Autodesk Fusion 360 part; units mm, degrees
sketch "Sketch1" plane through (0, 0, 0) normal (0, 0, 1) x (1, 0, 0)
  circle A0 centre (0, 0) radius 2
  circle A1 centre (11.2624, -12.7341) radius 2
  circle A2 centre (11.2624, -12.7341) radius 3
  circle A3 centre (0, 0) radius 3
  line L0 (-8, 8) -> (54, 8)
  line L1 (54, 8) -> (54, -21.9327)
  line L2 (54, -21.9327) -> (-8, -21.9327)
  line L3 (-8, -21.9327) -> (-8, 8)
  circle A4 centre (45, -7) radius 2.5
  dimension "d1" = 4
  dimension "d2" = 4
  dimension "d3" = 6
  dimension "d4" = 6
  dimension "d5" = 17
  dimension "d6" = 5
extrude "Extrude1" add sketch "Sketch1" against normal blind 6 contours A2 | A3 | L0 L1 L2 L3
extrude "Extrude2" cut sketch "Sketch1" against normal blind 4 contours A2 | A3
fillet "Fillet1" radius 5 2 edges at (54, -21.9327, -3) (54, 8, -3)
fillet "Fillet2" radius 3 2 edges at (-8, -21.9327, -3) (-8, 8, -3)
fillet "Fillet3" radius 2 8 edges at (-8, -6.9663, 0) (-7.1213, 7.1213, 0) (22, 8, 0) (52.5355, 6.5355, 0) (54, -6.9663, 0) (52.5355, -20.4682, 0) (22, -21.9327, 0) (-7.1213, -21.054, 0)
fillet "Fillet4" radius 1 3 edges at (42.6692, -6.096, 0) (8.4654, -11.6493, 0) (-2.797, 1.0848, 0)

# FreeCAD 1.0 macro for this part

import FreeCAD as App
import Part
import Sketcher
from FreeCAD import Vector


def edges_at(feature, points):
    """Names of the edges that pass closest to the given points."""
    edges = feature.Shape.Edges
    near = lambda p: min(range(len(edges)), key=lambda i: edges[i].distToShape(Part.Vertex(*p))[0])
    return sorted({f"Edge{near(p) + 1}" for p in points})


def add_polygon(sketch, points):
    """Adds a closed chain of lines whose ends are joined by coincident constraints."""
    first, n = sketch.GeometryCount, len(points)
    for a, b in zip(points, points[1:] + points[:1]):
        sketch.addGeometry(Part.LineSegment(App.Vector(*a, 0), App.Vector(*b, 0)), False)
    for i in range(n):
        sketch.addConstraint(Sketcher.Constraint("Coincident", first + i, 2, first + (i + 1) % n, 1))

doc = App.newDocument("Part")
body = doc.addObject("PartDesign::Body", "Body")

# Sketch on XY plane
sketch1 = body.newObject("Sketcher::SketchObject", "Sketch")
sketch1.AttachmentSupport = (doc.getObject("XY_Plane"), [""])
sketch1.MapMode = "FlatFace"
add_polygon(sketch1, [(54, 8), (-8, 8), (-8, -21.9), (54, -21.9)])  # lines 0-3
sketch1.addGeometry(Part.Circle(Vector(11.3, -12.7, 0), Vector(0, 0, 1), 2), False)  # 4
sketch1.addGeometry(Part.Circle(Vector(45, -7, 0), Vector(0, 0, 1), 2.5), False)  # 5
sketch1.addGeometry(Part.Circle(Vector(0, 0, 0), Vector(0, 0, 1), 2), False)  # 6
sketch1.addConstraint(Sketcher.Constraint("Horizontal", 0))
sketch1.addConstraint(Sketcher.Constraint("Vertical", 1))
sketch1.addConstraint(Sketcher.Constraint("Horizontal", 2))
sketch1.addConstraint(Sketcher.Constraint("Vertical", 3))
sketch1.addConstraint(Sketcher.Constraint("Coincident", 6, 3, -1, 1))
sketch1.addConstraint(Sketcher.Constraint("Equal", 4, 6))
sketch1.addConstraint(Sketcher.Constraint("Diameter", 4, 4.0))
sketch1.addConstraint(Sketcher.Constraint("Diameter", 5, 5.0))
sketch1.addConstraint(Sketcher.Constraint("DistanceX", 0, 2, 0, 1, 62.0))
sketch1.addConstraint(Sketcher.Constraint("DistanceX", -1, 1, 5, 3, 45.0))
sketch1.addConstraint(Sketcher.Constraint("DistanceY", 5, 3, -1, 1, 7.0))
sketch1.addConstraint(Sketcher.Constraint("DistanceX", 0, 2, -1, 1, 8.0))
sketch1.addConstraint(Sketcher.Constraint("DistanceY", -1, 1, 0, 2, 8.0))
sketch1.addConstraint(Sketcher.Constraint("DistanceY", 1, 2, 1, 1, 29.9327))
sketch1.addConstraint(Sketcher.Constraint("DistanceY", 4, 3, -1, 1, 12.734))
sketch1.addConstraint(Sketcher.Constraint("DistanceX", -1, 1, 4, 3, 11.2624))
pad1 = body.newObject("PartDesign::Pad", "Pad")
pad1.Profile = sketch1
pad1.Length = 6
pad1.Reversed = True

# Sketch on XY plane
sketch2 = body.newObject("Sketcher::SketchObject", "Sketch001")
sketch2.AttachmentSupport = (doc.getObject("XY_Plane"), [""])
sketch2.MapMode = "FlatFace"
sketch2.addGeometry(Part.Circle(Vector(11.3, -12.7, 0), Vector(0, 0, 1), 3), False)
sketch2.addGeometry(Part.Circle(Vector(11.3, -12.7, 0), Vector(0, 0, 1), 2), False)
sketch2.addGeometry(Part.Circle(Vector(0, 0, 0), Vector(0, 0, 1), 3), False)
sketch2.addGeometry(Part.Circle(Vector(0, 0, 0), Vector(0, 0, 1), 2), False)
sketch2.addConstraint(Sketcher.Constraint("Coincident", 2, 3, -1, 1))
sketch2.addConstraint(Sketcher.Constraint("Coincident", 3, 3, -1, 1))
sketch2.addConstraint(Sketcher.Constraint("Coincident", 1, 3, 0, 3))
sketch2.addConstraint(Sketcher.Constraint("Equal", 0, 2))
sketch2.addConstraint(Sketcher.Constraint("Equal", 1, 3))
sketch2.addConstraint(Sketcher.Constraint("Diameter", 0, 6.0))
sketch2.addConstraint(Sketcher.Constraint("Diameter", 1, 4.0))
sketch2.addConstraint(Sketcher.Constraint("DistanceY", 0, 3, -1, 1, 12.734))
sketch2.addConstraint(Sketcher.Constraint("DistanceX", -1, 1, 0, 3, 11.2624))
pocket1 = body.newObject("PartDesign::Pocket", "Pocket")
pocket1.Profile = sketch2
pocket1.Length = 4
doc.recompute()

fillet = body.newObject("PartDesign::Fillet", "Fillet")
fillet.Base = (pocket1, edges_at(pocket1, [(54, -21.933, -3), (54, 8, -3)]))
fillet.Radius = 5
doc.recompute()

fillet2 = body.newObject("PartDesign::Fillet", "Fillet001")
fillet2.Base = (fillet, edges_at(fillet, [(-8, -21.933, -3), (-8, 8, -3)]))
fillet2.Radius = 3
doc.recompute()

fillet3 = body.newObject("PartDesign::Fillet", "Fillet002")
fillet3.Base = (fillet2, edges_at(fillet2, [
    (-8, -6.966, 0),
    (-7.121, 7.121, 0),
    (22, 8, 0),
    (52.535, 6.535, 0),
    (54, -6.966, 0),
    (52.535, -20.468, 0),
    (22, -21.933, 0),
    (-7.121, -21.054, 0),
]))
fillet3.Radius = 2
doc.recompute()

fillet4 = body.newObject("PartDesign::Fillet", "Fillet003")
fillet4.Base = (fillet3, edges_at(fillet3, [(42.669, -6.096, 0), (8.465, -11.649, 0), (-2.797, 1.085, 0)]))
fillet4.Radius = 1

doc.recompute()
